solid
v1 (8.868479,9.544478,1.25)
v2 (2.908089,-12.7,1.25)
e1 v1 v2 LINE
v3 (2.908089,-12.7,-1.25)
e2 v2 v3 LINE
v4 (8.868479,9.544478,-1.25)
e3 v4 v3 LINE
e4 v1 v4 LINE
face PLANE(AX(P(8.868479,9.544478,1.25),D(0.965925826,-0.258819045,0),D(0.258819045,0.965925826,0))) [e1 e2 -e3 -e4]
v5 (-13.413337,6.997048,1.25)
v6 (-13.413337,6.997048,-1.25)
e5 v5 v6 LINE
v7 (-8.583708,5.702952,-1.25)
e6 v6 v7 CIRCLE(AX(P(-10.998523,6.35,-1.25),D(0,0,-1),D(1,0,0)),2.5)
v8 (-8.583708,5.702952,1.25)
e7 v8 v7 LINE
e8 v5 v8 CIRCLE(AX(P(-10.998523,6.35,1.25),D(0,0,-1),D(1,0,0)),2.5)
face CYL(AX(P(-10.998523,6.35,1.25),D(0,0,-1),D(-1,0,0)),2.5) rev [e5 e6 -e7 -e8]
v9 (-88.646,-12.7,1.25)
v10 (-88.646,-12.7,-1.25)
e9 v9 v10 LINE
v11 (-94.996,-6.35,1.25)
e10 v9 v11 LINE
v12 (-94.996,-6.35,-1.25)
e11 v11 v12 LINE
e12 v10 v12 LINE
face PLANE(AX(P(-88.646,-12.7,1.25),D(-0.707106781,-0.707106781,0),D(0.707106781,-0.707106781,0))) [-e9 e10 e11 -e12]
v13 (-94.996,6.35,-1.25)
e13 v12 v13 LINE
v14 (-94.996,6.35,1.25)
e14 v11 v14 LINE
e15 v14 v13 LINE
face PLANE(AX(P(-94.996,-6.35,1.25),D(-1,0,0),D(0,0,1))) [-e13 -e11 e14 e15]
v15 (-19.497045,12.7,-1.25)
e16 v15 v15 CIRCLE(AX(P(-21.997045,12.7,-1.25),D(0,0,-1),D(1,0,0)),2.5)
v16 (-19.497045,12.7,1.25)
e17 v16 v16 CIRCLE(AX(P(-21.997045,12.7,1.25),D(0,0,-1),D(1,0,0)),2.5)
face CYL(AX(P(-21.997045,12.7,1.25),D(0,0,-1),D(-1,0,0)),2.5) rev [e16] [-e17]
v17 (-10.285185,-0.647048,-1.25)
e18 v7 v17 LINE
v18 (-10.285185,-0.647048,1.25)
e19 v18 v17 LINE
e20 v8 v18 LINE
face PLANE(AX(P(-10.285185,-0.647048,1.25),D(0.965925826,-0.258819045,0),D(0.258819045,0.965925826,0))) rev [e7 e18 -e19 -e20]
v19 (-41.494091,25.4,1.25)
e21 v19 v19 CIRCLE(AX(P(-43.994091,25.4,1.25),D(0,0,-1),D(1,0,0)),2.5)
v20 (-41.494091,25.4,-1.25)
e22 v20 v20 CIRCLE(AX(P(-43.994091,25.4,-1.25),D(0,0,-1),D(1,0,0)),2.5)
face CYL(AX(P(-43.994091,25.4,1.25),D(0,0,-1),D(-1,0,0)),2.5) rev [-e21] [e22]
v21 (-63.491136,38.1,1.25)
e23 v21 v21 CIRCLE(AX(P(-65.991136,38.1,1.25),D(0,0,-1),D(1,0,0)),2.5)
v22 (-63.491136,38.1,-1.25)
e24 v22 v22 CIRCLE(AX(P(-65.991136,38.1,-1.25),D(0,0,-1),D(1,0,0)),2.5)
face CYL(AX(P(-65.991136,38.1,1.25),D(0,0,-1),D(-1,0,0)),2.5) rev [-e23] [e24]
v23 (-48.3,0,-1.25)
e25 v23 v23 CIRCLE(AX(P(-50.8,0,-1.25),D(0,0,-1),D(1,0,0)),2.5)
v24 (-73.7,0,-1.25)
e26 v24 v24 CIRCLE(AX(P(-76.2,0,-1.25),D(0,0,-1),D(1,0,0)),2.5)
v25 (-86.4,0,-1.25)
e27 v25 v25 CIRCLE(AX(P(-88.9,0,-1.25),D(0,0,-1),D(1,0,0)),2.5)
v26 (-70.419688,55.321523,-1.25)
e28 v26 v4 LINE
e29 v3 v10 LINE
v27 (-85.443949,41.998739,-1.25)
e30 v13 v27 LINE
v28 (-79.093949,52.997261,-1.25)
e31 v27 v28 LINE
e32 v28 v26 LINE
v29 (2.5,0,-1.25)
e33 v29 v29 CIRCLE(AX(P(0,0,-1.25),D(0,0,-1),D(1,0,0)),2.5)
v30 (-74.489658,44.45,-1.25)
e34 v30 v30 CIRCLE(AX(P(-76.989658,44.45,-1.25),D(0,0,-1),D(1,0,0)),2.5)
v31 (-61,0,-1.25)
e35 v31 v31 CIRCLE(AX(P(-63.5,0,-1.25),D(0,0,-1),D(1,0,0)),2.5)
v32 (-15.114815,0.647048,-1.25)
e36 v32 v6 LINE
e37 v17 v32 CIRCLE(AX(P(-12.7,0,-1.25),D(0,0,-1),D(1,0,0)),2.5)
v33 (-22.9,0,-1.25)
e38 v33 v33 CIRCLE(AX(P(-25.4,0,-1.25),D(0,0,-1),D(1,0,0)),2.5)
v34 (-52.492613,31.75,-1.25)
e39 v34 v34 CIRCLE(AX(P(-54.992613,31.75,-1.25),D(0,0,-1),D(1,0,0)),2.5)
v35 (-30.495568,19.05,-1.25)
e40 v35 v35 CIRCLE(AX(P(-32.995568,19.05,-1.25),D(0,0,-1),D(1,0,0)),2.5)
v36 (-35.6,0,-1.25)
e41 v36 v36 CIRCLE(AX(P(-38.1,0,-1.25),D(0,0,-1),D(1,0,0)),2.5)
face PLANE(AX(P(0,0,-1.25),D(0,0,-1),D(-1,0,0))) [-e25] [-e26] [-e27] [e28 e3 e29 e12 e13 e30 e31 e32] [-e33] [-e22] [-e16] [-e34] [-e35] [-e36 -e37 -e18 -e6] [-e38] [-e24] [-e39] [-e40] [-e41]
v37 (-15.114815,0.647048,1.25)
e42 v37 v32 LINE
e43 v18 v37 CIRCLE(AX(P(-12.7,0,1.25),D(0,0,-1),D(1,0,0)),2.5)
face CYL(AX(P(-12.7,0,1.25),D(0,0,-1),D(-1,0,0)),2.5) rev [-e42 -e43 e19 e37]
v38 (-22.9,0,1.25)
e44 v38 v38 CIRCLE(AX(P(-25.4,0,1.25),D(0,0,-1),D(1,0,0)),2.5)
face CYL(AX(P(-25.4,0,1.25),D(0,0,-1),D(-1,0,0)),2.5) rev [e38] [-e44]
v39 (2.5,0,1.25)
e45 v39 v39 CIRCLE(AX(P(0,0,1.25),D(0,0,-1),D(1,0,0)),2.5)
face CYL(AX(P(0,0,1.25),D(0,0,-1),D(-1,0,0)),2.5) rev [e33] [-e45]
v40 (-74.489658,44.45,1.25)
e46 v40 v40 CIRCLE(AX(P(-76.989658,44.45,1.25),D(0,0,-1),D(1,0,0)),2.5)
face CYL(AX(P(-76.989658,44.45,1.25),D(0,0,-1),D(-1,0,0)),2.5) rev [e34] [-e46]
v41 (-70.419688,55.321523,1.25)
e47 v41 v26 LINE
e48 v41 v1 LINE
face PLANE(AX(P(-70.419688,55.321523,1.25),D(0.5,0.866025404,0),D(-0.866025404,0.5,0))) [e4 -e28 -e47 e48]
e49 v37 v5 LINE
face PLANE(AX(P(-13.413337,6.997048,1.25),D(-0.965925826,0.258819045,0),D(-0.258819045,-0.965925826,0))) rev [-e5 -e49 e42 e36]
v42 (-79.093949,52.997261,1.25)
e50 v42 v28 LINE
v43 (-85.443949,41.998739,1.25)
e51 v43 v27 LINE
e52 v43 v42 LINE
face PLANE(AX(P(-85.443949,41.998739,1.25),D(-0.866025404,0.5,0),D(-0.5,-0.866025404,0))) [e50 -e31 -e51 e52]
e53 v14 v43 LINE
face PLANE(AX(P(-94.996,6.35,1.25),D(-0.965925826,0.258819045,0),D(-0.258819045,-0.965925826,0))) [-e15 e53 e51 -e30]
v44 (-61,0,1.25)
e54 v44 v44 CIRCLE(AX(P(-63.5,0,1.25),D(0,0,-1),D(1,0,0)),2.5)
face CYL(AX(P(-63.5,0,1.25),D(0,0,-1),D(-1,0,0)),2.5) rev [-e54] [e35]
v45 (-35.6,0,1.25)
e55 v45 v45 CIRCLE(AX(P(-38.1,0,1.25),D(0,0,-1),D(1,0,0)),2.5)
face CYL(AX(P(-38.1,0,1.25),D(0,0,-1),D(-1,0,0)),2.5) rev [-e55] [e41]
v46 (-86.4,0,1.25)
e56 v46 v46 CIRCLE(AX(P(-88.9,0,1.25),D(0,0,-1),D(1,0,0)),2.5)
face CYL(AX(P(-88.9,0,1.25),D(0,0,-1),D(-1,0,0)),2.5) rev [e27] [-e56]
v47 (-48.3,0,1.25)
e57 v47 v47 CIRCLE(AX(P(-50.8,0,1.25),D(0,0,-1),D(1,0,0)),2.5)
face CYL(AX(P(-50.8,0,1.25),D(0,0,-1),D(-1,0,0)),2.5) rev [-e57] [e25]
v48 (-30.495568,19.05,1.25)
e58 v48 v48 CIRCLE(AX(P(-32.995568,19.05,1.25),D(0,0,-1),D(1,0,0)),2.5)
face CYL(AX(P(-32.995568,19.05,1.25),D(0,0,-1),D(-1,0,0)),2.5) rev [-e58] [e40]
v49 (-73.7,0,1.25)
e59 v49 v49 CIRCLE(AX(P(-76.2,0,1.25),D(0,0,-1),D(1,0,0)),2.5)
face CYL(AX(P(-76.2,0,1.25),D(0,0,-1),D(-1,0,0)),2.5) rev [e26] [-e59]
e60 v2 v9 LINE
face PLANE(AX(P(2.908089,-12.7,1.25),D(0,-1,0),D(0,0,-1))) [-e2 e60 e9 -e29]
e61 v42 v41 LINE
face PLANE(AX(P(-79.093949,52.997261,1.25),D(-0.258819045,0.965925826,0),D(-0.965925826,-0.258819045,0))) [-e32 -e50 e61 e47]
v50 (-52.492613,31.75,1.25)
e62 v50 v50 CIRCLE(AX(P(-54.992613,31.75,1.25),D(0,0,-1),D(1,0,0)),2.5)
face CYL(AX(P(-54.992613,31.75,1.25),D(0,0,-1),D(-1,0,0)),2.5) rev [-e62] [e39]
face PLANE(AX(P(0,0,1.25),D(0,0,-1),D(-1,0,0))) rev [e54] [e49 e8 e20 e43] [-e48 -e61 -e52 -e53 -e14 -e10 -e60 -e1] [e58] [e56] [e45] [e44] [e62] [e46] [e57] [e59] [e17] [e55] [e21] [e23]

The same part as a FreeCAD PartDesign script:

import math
import FreeCAD as App
import Part
import Sketcher
Q = App.Units.Quantity

doc = App.newDocument("Part")
params = doc.addObject("Spreadsheet::Sheet", "Params")
for row, (alias, value) in enumerate([
    ("sketch1_diameter", "5 mm"),
    ("sketch1_height", "12.7 mm"),
    ("sketch1_length", "12.7 mm"),
    ("pad1_length", "2.5 mm"),
], start=1):
    params.set(f"A{row}", alias)
    params.set(f"B{row}", "=" + value)
    params.setAlias(f"B{row}", alias)

body = doc.addObject("PartDesign::Body", "Body")

sketch1 = body.newObject("Sketcher::SketchObject", "Sketch")
sketch1.AttachmentSupport = (doc.getObject("XY_Plane"), [""])
sketch1.MapMode = "FlatFace"
sketch1.AttachmentOffset = App.Placement(App.Vector(0, 0, -1.25), App.Rotation())
sketch1.addGeometry([
    Part.LineSegment(App.Vector(2.908089, -12.7, 0), App.Vector(-88.646, -12.7, 0)),
    Part.LineSegment(App.Vector(-88.646, -12.7, 0), App.Vector(-94.996, -6.35, 0)),
    Part.LineSegment(App.Vector(-94.996, -6.35, 0), App.Vector(-94.996, 6.35, 0)),
    Part.LineSegment(App.Vector(-94.996, 6.35, 0), App.Vector(-85.443949, 41.998739, 0)),
    Part.LineSegment(App.Vector(-85.443949, 41.998739, 0), App.Vector(-79.093949, 52.997261, 0)),
    Part.LineSegment(App.Vector(-79.093949, 52.997261, 0), App.Vector(-70.419688, 55.321523, 0)),
    Part.LineSegment(App.Vector(-70.419688, 55.321523, 0), App.Vector(8.868479, 9.544478, 0)),
    Part.LineSegment(App.Vector(8.868479, 9.544478, 0), App.Vector(2.908089, -12.7, 0)),
    Part.Circle(App.Vector(0, 0, 0), App.Vector(0, 0, 1), 2.5),
    Part.ArcOfCircle(Part.Circle(App.Vector(-12.7, 0, 0), App.Vector(0, 0, 1), 2.5), math.radians(165), math.radians(345)),
    Part.LineSegment(App.Vector(-10.285185, -0.647048, 0), App.Vector(-8.583708, 5.702952, 0)),
    Part.ArcOfCircle(Part.Circle(App.Vector(-10.998523, 6.35, 0), App.Vector(0, 0, 1), 2.5), math.radians(-15), math.radians(165)),
    Part.LineSegment(App.Vector(-13.413337, 6.997048, 0), App.Vector(-15.114815, 0.647048, 0)),
    Part.Circle(App.Vector(-25.4, 0, 0), App.Vector(0, 0, 1), 2.5),
    Part.Circle(App.Vector(-38.1, 0, 0), App.Vector(0, 0, 1), 2.5),
    Part.Circle(App.Vector(-21.997045, 12.7, 0), App.Vector(0, 0, 1), 2.5),
    Part.Circle(App.Vector(-32.995568, 19.05, 0), App.Vector(0, 0, 1), 2.5),
    Part.Circle(App.Vector(-50.8, 0, 0), App.Vector(0, 0, 1), 2.5),
    Part.Circle(App.Vector(-63.5, 0, 0), App.Vector(0, 0, 1), 2.5),
    Part.Circle(App.Vector(-76.2, 0, 0), App.Vector(0, 0, 1), 2.5),
    Part.Circle(App.Vector(-88.9, 0, 0), App.Vector(0, 0, 1), 2.5),
    Part.Circle(App.Vector(-43.994091, 25.4, 0), App.Vector(0, 0, 1), 2.5),
    Part.Circle(App.Vector(-54.992613, 31.75, 0), App.Vector(0, 0, 1), 2.5),
    Part.Circle(App.Vector(-65.991136, 38.1, 0), App.Vector(0, 0, 1), 2.5),
    Part.Circle(App.Vector(-76.989658, 44.45, 0), App.Vector(0, 0, 1), 2.5),
], False)
sketch1.addConstraint([
    Sketcher.Constraint("Coincident", 0, 2, 1, 1),
    Sketcher.Constraint("Coincident", 1, 2, 2, 1),
    Sketcher.Constraint("Coincident", 2, 2, 3, 1),
    Sketcher.Constraint("Coincident", 3, 2, 4, 1),
    Sketcher.Constraint("Coincident", 4, 2, 5, 1),
    Sketcher.Constraint("Coincident", 5, 2, 6, 1),
    Sketcher.Constraint("Coincident", 6, 2, 7, 1),
    Sketcher.Constraint("Coincident", 7, 2, 0, 1),
    Sketcher.Constraint("Tangent", 9, 2, 10, 1),
    Sketcher.Constraint("Tangent", 10, 2, 11, 1),
    Sketcher.Constraint("Tangent", 11, 2, 12, 1),
    Sketcher.Constraint("Tangent", 12, 2, 9, 1),
    Sketcher.Constraint("Horizontal", 0),
    Sketcher.Constraint("Vertical", 2),
    Sketcher.Constraint("Coincident", 8, 3, -1, 1),
    Sketcher.Constraint("Equal", 8, 9),
    Sketcher.Constraint("Equal", 9, 11),
    Sketcher.Constraint("Equal", 11, 13),
    Sketcher.Constraint("Equal", 13, 14),
    Sketcher.Constraint("Equal", 14, 15),
    Sketcher.Constraint("Equal", 15, 16),
    Sketcher.Constraint("Equal", 16, 17),
    Sketcher.Constraint("Equal", 17, 18),
    Sketcher.Constraint("Equal", 18, 19),
    Sketcher.Constraint("Equal", 19, 20),
    Sketcher.Constraint("Equal", 20, 21),
    Sketcher.Constraint("Equal", 21, 22),
    Sketcher.Constraint("Equal", 22, 23),
    Sketcher.Constraint("Equal", 23, 24),
    Sketcher.Constraint("PointOnObject", 9, 3, -1),
    Sketcher.Constraint("PointOnObject", 13, 3, -1),
    Sketcher.Constraint("PointOnObject", 14, 3, -1),
    Sketcher.Constraint("PointOnObject", 17, 3, -1),
    Sketcher.Constraint("PointOnObject", 18, 3, -1),
    Sketcher.Constraint("PointOnObject", 19, 3, -1),
    Sketcher.Constraint("PointOnObject", 20, 3, -1),
    Sketcher.Constraint("Perpendicular", 4, 6),
    Sketcher.Constraint("Parallel", 3, 7),
    Sketcher.Constraint("Parallel", 7, 10),
    Sketcher.Constraint("Horizontal", 11, 3, 2, 2),
    Sketcher.Constraint("Equal", 1, 5),
    Sketcher.Constraint("Diameter", 8, 5.0),
    Sketcher.Constraint("Angle", 1, Q("135 deg")),
    Sketcher.Constraint("Angle", 3, Q("75 deg")),
    Sketcher.Constraint("Angle", 4, Q("60 deg")),
    Sketcher.Constraint("Angle", 5, Q("15 deg")),
    Sketcher.Constraint("DistanceY", 2, 1, 2, 2, 12.7),
    Sketcher.Constraint("Distance", 4, 12.7),
    Sketcher.Constraint("DistanceX", 9, 3, -1, 1, 12.7),
    Sketcher.Constraint("DistanceX", 13, 3, -1, 1, 25.4),
    Sketcher.Constraint("DistanceX", 14, 3, -1, 1, 38.1),
    Sketcher.Constraint("DistanceY", -1, 1, 15, 3, 12.7),
    Sketcher.Constraint("DistanceX", 17, 3, -1, 1, 50.8),
    Sketcher.Constraint("DistanceX", 18, 3, -1, 1, 63.5),
    Sketcher.Constraint("DistanceX", 19, 3, -1, 1, 76.2),
    Sketcher.Constraint("DistanceX", 20, 3, -1, 1, 88.9),
    Sketcher.Constraint("DistanceY", -1, 1, 21, 3, 25.4),
    Sketcher.Constraint("DistanceY", -1, 1, 23, 3, 38.1),
    Sketcher.Constraint("DistanceY", 0, 2, -1, 1, 12.7),
    Sketcher.Constraint("DistanceY", 11, 3, 16, 3, 12.7),
    Sketcher.Constraint("DistanceY", 16, 3, 22, 3, 12.7),
    Sketcher.Constraint("DistanceY", 22, 3, 24, 3, 12.7),
    Sketcher.Constraint("DistanceY", -1, 1, 11, 3, 6.35),
    Sketcher.Constraint("DistanceX", 0, 2, -1, 1, 88.646),
    Sketcher.Constraint("DistanceX", 11, 3, 6, 2, 19.867001),
    Sketcher.Constraint("DistanceX", 0, 2, 0, 1, 91.554089),
    Sketcher.Constraint("DistanceX", 21, 3, -1, 1, 43.994091),
    Sketcher.Constraint("DistanceX", 24, 3, -1, 1, 76.989658),
    Sketcher.Constraint("DistanceX", 15, 3, 9, 2, 11.71186),
    Sketcher.Constraint("DistanceX", 16, 3, -1, 1, 32.995568),
    Sketcher.Constraint("DistanceX", 22, 3, -1, 1, 54.992613),
    Sketcher.Constraint("DistanceX", 23, 3, -1, 1, 65.991136),
])
sketch1.setExpression("Constraints[41]", "Params.sketch1_diameter")
sketch1.setExpression("Constraints[46]", "Params.sketch1_height")
sketch1.setExpression("Constraints[47]", "Params.sketch1_length")
pad1 = body.newObject("PartDesign::Pad", "Pad")
pad1.Profile = sketch1
pad1.setExpression("Length", "Params.pad1_length")

doc.recompute()
